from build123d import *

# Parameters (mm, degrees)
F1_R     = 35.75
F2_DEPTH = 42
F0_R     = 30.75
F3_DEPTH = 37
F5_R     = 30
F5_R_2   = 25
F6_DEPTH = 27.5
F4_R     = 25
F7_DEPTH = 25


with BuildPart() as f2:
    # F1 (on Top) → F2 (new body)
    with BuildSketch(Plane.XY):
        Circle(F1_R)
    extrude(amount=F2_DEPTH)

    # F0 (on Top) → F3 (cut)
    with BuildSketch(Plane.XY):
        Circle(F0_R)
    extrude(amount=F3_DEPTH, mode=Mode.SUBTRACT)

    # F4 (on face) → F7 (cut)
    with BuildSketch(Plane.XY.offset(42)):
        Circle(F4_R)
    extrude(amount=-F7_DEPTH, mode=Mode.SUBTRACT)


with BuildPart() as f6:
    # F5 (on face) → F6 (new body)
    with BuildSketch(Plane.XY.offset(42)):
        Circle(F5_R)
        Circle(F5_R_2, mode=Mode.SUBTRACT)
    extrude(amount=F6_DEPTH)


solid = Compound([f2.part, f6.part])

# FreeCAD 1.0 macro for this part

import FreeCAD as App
import Part
import Sketcher
Q = App.Units.Quantity

doc = App.newDocument("Part")
body = doc.addObject("PartDesign::Body", "Body")

# Sketch on XY plane
sketch1 = body.newObject("Sketcher::SketchObject", "Sketch")
sketch1.AttachmentSupport = (doc.getObject("XY_Plane"), [""])
sketch1.MapMode = "FlatFace"
sketch1.addGeometry(Part.Circle(App.Vector(0, 0, 0), App.Vector(0, 0, 1), 35.75), False)
sketch1.addConstraint([
    Sketcher.Constraint("Coincident", 0, 3, -1, 1),
    Sketcher.Constraint("Diameter", 0, Q("71.5 mm")),
])
pad1 = body.newObject("PartDesign::Pad", "Pad")
pad1.Profile = sketch1
pad1.Length = 42

# Sketch on XY plane
sketch2 = body.newObject("Sketcher::SketchObject", "Sketch001")
sketch2.AttachmentSupport = (doc.getObject("XY_Plane"), [""])
sketch2.MapMode = "FlatFace"
sketch2.addGeometry(Part.Circle(App.Vector(0, 0, 0), App.Vector(0, 0, 1), 30.75), False)
sketch2.addConstraint([
    Sketcher.Constraint("Coincident", 0, 3, -1, 1),
    Sketcher.Constraint("Diameter", 0, Q("61.5 mm")),
])
pocket1 = body.newObject("PartDesign::Pocket", "Pocket")
pocket1.Profile = sketch2
pocket1.Length = 37
pocket1.Reversed = True

# Sketch on XY plane
sketch3 = body.newObject("Sketcher::SketchObject", "Sketch002")
sketch3.AttachmentSupport = (doc.getObject("XY_Plane"), [""])
sketch3.MapMode = "FlatFace"
sketch3.AttachmentOffset = App.Placement(App.Vector(0, 0, 42), App.Rotation())
sketch3.addGeometry(Part.Circle(App.Vector(0, 0, 0), App.Vector(0, 0, 1), 25), False)
sketch3.addConstraint([
    Sketcher.Constraint("Coincident", 0, 3, -1, 1),
    Sketcher.Constraint("Diameter", 0, Q("50 mm")),
])
pocket2 = body.newObject("PartDesign::Pocket", "Pocket001")
pocket2.Profile = sketch3
pocket2.Length = 25
body2 = doc.addObject("PartDesign::Body", "Body001")

# Sketch on XY plane
sketch4 = body2.newObject("Sketcher::SketchObject", "Sketch003")
sketch4.AttachmentSupport = (doc.getObject("XY_Plane001"), [""])
sketch4.MapMode = "FlatFace"
sketch4.AttachmentOffset = App.Placement(App.Vector(0, 0, 42), App.Rotation())
sketch4.addGeometry([
    Part.Circle(App.Vector(0, 0, 0), App.Vector(0, 0, 1), 30),
    Part.Circle(App.Vector(0, 0, 0), App.Vector(0, 0, 1), 25),
], False)
sketch4.addConstraint([
    Sketcher.Constraint("Coincident", 0, 3, -1, 1),
    Sketcher.Constraint("Coincident", 1, 3, -1, 1),
    Sketcher.Constraint("Diameter", 0, Q("60 mm")),
    Sketcher.Constraint("Diameter", 1, Q("50 mm")),
])
pad2 = body2.newObject("PartDesign::Pad", "Pad001")
pad2.Profile = sketch4
pad2.Length = 27.5

doc.recompute()
